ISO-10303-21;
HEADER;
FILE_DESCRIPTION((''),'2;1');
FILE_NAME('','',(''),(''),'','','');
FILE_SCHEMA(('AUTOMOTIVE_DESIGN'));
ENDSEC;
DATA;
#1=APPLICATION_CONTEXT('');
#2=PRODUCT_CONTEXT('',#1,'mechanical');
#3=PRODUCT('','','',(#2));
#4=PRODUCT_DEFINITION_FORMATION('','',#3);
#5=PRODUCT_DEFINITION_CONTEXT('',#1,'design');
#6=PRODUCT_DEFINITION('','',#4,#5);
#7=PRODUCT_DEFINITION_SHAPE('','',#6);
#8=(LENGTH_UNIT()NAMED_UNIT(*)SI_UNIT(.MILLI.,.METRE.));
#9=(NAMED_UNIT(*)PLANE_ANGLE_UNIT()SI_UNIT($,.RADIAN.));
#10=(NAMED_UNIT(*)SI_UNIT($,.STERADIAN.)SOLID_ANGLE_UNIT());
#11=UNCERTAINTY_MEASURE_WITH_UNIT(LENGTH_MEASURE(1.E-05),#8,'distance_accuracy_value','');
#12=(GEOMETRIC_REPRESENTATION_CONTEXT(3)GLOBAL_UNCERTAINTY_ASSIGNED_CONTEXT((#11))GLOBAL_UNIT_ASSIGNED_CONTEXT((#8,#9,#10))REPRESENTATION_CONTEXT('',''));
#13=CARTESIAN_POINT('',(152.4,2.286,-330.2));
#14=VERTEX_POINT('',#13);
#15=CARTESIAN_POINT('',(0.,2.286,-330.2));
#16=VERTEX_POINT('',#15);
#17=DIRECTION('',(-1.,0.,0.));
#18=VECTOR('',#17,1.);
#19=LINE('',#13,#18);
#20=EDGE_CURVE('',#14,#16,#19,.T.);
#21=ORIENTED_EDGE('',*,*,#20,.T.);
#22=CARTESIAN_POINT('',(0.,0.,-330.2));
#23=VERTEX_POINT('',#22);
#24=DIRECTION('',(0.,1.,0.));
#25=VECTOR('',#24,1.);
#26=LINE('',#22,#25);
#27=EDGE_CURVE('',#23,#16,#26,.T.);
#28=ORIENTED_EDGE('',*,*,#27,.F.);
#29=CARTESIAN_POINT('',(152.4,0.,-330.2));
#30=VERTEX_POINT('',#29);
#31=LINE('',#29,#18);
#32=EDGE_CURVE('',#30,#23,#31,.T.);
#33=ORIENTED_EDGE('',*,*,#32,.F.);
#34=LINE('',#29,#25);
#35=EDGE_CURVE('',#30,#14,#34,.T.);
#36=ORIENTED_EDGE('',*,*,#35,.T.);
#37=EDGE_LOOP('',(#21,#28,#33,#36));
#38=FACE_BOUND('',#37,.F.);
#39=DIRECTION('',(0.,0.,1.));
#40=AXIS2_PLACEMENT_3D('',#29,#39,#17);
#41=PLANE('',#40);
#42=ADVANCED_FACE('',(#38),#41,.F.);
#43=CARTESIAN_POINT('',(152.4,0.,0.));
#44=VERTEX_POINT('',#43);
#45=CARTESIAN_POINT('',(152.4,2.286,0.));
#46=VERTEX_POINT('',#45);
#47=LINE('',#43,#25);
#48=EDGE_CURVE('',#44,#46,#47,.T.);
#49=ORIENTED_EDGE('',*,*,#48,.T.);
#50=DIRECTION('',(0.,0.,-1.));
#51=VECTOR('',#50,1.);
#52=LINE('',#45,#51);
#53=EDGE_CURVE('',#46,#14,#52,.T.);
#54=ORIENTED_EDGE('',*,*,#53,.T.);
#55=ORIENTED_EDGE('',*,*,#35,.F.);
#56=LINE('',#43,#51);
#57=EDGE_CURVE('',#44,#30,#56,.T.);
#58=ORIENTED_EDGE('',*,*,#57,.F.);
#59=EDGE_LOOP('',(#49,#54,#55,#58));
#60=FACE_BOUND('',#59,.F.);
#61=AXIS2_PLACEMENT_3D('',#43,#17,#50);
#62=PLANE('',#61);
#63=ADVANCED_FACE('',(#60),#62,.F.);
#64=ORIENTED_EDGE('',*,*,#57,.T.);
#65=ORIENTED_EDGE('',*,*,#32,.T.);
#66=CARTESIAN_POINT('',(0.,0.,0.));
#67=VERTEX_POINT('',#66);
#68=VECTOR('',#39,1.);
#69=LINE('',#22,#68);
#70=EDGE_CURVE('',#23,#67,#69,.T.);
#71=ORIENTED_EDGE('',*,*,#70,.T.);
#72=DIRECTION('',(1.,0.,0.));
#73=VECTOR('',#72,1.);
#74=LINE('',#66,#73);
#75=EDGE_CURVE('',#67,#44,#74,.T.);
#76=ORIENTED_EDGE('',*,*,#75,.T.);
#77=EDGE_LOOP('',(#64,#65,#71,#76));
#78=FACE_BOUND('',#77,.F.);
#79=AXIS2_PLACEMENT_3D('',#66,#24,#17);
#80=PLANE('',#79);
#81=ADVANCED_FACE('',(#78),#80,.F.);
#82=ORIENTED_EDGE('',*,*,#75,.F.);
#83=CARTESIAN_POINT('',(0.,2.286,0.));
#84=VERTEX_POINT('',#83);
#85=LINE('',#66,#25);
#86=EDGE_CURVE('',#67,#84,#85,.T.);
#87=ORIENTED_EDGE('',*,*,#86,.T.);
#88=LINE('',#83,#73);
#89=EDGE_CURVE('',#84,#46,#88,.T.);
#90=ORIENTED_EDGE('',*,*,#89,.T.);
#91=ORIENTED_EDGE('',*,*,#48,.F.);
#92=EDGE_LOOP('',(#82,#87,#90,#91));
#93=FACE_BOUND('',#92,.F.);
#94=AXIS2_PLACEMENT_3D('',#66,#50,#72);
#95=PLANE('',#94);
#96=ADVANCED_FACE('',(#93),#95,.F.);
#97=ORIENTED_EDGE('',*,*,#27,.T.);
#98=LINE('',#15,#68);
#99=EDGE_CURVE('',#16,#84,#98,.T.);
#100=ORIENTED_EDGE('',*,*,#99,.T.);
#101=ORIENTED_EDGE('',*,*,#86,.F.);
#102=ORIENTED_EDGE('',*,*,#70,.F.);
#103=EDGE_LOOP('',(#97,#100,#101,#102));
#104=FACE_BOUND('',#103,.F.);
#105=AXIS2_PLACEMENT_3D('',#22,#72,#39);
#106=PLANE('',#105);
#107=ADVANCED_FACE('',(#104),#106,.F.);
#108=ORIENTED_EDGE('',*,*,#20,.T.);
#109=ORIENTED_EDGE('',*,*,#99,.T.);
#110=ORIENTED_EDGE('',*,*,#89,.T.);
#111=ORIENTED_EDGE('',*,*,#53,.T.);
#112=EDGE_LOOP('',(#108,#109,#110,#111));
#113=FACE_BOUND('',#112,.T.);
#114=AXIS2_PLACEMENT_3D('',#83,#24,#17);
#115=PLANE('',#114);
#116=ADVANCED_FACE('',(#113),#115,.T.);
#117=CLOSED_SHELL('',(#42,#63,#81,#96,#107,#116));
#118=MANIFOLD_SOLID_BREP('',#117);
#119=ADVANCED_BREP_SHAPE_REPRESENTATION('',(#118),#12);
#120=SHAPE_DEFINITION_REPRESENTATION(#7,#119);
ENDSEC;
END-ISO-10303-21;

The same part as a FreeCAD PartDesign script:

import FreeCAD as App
import Part
import Sketcher
Q = App.Units.Quantity

doc = App.newDocument("Part")
params = doc.addObject("Spreadsheet::Sheet", "Params")
for row, (alias, value) in enumerate([
    ("sketch1_width", "6 in"),
    ("sketch1_height", "13 in"),
    ("pad1_length", "0.09 in"),
], start=1):
    params.set(f"A{row}", alias)
    params.set(f"B{row}", "=" + value)
    params.setAlias(f"B{row}", alias)

body = doc.addObject("PartDesign::Body", "Body")

# Sketch on XZ plane
sketch1 = body.newObject("Sketcher::SketchObject", "Sketch")
sketch1.AttachmentSupport = (doc.getObject("XZ_Plane"), [""])
sketch1.MapMode = "FlatFace"
sketch1.addGeometry([
    Part.LineSegment(App.Vector(0, -330, 0), App.Vector(0, 0, 0)),
    Part.LineSegment(App.Vector(0, 0, 0), App.Vector(152, 0, 0)),
    Part.LineSegment(App.Vector(152, 0, 0), App.Vector(152, -330, 0)),
    Part.LineSegment(App.Vector(152, -330, 0), App.Vector(0, -330, 0)),
], False)
sketch1.addConstraint([
    Sketcher.Constraint("Coincident", 0, 2, 1, 1),
    Sketcher.Constraint("Coincident", 1, 2, 2, 1),
    Sketcher.Constraint("Coincident", 2, 2, 3, 1),
    Sketcher.Constraint("Coincident", 3, 2, 0, 1),
    Sketcher.Constraint("Vertical", 0),
    Sketcher.Constraint("Horizontal", 1),
    Sketcher.Constraint("Vertical", 2),
    Sketcher.Constraint("Horizontal", 3),
    Sketcher.Constraint("Coincident", 0, 2, -1, 1),
    Sketcher.Constraint("DistanceX", 1, 1, 1, 2, Q("6 in")),
    Sketcher.Constraint("DistanceY", 0, 1, 0, 2, Q("13 in")),
])
sketch1.setExpression("Constraints[9]", "Params.sketch1_width")
sketch1.setExpression("Constraints[10]", "Params.sketch1_height")
pad1 = body.newObject("PartDesign::Pad", "Pad")
pad1.Profile = sketch1
pad1.setExpression("Length", "Params.pad1_length")
pad1.Reversed = True

doc.recompute()
